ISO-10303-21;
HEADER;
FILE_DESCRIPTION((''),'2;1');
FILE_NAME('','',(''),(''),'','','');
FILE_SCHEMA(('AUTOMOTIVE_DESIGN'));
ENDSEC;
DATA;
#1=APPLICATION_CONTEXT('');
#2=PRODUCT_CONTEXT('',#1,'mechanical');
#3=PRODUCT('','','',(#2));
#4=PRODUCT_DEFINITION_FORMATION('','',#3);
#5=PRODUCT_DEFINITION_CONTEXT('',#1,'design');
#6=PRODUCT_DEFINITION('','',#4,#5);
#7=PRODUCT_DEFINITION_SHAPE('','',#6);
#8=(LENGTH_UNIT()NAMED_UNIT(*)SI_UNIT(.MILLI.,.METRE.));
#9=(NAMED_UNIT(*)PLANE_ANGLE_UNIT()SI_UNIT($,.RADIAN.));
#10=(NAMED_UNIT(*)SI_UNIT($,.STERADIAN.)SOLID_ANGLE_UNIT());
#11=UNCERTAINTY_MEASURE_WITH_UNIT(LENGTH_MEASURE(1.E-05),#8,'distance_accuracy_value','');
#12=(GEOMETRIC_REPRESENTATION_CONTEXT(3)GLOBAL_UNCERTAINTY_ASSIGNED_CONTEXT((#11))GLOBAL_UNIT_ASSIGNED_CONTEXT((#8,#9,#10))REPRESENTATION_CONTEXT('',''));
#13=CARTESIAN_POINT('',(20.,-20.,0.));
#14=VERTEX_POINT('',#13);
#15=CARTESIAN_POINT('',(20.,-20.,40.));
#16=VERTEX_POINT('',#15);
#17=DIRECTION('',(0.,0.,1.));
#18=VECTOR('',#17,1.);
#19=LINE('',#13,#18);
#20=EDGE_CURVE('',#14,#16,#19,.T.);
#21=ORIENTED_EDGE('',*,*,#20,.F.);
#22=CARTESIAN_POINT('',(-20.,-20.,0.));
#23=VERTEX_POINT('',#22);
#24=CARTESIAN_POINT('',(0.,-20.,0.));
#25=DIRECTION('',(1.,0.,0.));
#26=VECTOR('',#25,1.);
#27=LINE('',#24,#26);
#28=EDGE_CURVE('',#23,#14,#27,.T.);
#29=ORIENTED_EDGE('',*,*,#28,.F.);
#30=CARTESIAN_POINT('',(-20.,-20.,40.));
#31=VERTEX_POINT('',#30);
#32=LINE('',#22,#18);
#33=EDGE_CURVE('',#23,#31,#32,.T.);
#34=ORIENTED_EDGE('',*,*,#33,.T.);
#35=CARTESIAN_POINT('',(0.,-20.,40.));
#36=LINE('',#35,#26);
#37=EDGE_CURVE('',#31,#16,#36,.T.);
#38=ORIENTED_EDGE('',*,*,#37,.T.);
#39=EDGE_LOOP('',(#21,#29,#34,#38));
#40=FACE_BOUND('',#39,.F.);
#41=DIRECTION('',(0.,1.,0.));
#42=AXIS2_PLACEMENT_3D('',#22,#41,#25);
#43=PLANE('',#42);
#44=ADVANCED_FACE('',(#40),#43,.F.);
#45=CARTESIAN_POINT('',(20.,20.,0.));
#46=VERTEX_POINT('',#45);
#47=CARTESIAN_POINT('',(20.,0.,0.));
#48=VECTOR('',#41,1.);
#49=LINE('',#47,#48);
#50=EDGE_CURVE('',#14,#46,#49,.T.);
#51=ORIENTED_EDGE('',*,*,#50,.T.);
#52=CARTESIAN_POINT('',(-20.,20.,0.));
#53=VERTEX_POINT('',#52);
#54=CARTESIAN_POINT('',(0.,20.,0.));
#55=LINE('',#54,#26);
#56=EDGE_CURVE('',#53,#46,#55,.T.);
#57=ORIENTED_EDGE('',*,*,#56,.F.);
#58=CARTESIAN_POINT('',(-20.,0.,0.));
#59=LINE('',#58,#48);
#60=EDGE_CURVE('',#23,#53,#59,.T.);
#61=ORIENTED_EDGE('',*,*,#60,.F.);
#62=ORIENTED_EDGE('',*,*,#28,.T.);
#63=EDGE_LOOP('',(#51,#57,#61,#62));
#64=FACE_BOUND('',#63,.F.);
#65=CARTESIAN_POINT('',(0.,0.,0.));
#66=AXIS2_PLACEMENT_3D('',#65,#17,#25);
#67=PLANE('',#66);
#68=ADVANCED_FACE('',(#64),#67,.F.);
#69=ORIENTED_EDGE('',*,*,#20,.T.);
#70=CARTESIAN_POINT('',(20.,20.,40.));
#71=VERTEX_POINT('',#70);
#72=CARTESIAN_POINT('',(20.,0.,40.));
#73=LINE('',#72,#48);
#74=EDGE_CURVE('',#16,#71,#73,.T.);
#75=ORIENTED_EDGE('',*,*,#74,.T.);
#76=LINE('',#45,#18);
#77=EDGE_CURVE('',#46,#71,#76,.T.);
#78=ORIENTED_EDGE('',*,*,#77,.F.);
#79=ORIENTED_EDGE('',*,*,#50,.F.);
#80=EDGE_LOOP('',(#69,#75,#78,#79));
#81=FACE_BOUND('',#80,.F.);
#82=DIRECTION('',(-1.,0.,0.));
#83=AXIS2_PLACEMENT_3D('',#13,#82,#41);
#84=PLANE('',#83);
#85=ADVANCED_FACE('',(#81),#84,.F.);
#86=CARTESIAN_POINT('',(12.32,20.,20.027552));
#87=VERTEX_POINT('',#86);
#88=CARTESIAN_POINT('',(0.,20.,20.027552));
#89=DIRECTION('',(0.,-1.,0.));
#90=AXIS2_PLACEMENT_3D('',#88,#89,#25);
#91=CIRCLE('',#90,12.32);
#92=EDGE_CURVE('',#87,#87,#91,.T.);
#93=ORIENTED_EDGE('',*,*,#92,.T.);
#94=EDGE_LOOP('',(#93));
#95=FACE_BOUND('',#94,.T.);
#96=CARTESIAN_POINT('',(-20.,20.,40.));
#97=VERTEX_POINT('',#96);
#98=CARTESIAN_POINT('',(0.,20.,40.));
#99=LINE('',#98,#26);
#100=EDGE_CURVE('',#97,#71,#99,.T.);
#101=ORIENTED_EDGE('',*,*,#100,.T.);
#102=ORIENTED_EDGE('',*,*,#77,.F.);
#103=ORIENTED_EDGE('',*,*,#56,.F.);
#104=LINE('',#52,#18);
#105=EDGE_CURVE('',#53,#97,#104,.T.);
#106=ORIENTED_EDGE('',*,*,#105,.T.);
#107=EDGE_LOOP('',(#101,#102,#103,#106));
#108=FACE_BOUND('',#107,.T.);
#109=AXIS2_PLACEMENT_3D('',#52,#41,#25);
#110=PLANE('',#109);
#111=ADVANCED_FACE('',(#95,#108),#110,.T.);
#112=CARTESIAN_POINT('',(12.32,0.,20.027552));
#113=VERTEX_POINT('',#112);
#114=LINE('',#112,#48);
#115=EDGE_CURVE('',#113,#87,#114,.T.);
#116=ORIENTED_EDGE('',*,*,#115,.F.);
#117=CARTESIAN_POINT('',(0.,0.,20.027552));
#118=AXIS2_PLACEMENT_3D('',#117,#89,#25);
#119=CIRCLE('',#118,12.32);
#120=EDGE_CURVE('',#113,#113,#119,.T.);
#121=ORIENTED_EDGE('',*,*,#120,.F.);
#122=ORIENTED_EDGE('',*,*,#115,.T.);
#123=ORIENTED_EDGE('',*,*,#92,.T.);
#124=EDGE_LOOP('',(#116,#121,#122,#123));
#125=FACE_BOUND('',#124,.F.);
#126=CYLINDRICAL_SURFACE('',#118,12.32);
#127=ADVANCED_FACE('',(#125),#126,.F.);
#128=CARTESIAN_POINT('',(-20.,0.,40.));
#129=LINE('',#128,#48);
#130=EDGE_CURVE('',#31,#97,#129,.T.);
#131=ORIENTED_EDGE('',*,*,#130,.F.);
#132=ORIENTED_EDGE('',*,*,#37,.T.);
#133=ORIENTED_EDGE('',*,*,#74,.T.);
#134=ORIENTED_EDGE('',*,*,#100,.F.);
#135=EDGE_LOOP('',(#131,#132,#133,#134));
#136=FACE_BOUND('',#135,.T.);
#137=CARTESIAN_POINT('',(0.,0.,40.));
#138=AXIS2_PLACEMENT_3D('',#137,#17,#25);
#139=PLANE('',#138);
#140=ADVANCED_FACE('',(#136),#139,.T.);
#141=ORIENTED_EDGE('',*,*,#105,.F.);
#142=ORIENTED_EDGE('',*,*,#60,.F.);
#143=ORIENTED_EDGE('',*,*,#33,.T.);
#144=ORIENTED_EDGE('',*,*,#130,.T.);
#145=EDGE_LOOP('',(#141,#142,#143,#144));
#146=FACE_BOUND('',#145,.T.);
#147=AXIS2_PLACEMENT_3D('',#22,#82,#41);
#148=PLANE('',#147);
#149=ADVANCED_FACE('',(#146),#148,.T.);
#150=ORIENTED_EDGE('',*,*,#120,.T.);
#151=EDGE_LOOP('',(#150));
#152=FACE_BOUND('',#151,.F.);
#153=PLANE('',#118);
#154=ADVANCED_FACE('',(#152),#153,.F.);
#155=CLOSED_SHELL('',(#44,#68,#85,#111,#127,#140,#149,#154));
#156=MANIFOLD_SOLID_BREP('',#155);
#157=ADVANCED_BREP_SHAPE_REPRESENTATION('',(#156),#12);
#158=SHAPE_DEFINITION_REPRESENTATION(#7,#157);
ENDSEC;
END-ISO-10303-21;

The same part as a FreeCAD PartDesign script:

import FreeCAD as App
import Part
import Sketcher

V = App.Vector

doc = App.newDocument("Part")
body = doc.addObject("PartDesign::Body", "Body")

# Sketch on XY plane
sketch1 = body.newObject("Sketcher::SketchObject", "Sketch")
sketch1.AttachmentSupport = (doc.getObject("XY_Plane"), [""])
sketch1.MapMode = "FlatFace"
sketch1.addGeometry(Part.LineSegment(V(-20, 20, 0), V(-20, -20, 0)), False)
sketch1.addGeometry(Part.LineSegment(V(-20, -20, 0), V(20, -20, 0)), False)
sketch1.addGeometry(Part.LineSegment(V(20, -20, 0), V(20, 20, 0)), False)
sketch1.addGeometry(Part.LineSegment(V(20, 20, 0), V(-20, 20, 0)), False)
sketch1.addConstraint(Sketcher.Constraint("Coincident", 0, 2, 1, 1))
sketch1.addConstraint(Sketcher.Constraint("Coincident", 1, 2, 2, 1))
sketch1.addConstraint(Sketcher.Constraint("Coincident", 2, 2, 3, 1))
sketch1.addConstraint(Sketcher.Constraint("Coincident", 3, 2, 0, 1))
sketch1.addConstraint(Sketcher.Constraint("Vertical", 0))
sketch1.addConstraint(Sketcher.Constraint("Horizontal", 1))
sketch1.addConstraint(Sketcher.Constraint("Vertical", 2))
sketch1.addConstraint(Sketcher.Constraint("Horizontal", 3))
sketch1.addConstraint(Sketcher.Constraint("Symmetric", 0, 2, 2, 2, -1, 1))
sketch1.addConstraint(Sketcher.Constraint("Equal", 3, 0))
sketch1.addConstraint(Sketcher.Constraint("DistanceX", 1, 1, 1, 2, 40.0))
pad1 = body.newObject("PartDesign::Pad", "Pad")
pad1.Profile = sketch1
pad1.Length = 40

# Sketch on XZ plane
sketch2 = body.newObject("Sketcher::SketchObject", "Sketch001")
sketch2.AttachmentSupport = (doc.getObject("XZ_Plane"), [""])
sketch2.MapMode = "FlatFace"
sketch2.addGeometry(Part.Circle(V(0, 20.027552, 0), V(0, 0, 1), 12.32), False)
sketch2.addConstraint(Sketcher.Constraint("PointOnObject", 0, 3, -2))
sketch2.addConstraint(Sketcher.Constraint("Diameter", 0, 24.64))
sketch2.addConstraint(Sketcher.Constraint("DistanceY", -1, 1, 0, 3, 20.027552))
pocket1 = body.newObject("PartDesign::Pocket", "Pocket")
pocket1.Profile = sketch2
pocket1.Length = 20

doc.recompute()
